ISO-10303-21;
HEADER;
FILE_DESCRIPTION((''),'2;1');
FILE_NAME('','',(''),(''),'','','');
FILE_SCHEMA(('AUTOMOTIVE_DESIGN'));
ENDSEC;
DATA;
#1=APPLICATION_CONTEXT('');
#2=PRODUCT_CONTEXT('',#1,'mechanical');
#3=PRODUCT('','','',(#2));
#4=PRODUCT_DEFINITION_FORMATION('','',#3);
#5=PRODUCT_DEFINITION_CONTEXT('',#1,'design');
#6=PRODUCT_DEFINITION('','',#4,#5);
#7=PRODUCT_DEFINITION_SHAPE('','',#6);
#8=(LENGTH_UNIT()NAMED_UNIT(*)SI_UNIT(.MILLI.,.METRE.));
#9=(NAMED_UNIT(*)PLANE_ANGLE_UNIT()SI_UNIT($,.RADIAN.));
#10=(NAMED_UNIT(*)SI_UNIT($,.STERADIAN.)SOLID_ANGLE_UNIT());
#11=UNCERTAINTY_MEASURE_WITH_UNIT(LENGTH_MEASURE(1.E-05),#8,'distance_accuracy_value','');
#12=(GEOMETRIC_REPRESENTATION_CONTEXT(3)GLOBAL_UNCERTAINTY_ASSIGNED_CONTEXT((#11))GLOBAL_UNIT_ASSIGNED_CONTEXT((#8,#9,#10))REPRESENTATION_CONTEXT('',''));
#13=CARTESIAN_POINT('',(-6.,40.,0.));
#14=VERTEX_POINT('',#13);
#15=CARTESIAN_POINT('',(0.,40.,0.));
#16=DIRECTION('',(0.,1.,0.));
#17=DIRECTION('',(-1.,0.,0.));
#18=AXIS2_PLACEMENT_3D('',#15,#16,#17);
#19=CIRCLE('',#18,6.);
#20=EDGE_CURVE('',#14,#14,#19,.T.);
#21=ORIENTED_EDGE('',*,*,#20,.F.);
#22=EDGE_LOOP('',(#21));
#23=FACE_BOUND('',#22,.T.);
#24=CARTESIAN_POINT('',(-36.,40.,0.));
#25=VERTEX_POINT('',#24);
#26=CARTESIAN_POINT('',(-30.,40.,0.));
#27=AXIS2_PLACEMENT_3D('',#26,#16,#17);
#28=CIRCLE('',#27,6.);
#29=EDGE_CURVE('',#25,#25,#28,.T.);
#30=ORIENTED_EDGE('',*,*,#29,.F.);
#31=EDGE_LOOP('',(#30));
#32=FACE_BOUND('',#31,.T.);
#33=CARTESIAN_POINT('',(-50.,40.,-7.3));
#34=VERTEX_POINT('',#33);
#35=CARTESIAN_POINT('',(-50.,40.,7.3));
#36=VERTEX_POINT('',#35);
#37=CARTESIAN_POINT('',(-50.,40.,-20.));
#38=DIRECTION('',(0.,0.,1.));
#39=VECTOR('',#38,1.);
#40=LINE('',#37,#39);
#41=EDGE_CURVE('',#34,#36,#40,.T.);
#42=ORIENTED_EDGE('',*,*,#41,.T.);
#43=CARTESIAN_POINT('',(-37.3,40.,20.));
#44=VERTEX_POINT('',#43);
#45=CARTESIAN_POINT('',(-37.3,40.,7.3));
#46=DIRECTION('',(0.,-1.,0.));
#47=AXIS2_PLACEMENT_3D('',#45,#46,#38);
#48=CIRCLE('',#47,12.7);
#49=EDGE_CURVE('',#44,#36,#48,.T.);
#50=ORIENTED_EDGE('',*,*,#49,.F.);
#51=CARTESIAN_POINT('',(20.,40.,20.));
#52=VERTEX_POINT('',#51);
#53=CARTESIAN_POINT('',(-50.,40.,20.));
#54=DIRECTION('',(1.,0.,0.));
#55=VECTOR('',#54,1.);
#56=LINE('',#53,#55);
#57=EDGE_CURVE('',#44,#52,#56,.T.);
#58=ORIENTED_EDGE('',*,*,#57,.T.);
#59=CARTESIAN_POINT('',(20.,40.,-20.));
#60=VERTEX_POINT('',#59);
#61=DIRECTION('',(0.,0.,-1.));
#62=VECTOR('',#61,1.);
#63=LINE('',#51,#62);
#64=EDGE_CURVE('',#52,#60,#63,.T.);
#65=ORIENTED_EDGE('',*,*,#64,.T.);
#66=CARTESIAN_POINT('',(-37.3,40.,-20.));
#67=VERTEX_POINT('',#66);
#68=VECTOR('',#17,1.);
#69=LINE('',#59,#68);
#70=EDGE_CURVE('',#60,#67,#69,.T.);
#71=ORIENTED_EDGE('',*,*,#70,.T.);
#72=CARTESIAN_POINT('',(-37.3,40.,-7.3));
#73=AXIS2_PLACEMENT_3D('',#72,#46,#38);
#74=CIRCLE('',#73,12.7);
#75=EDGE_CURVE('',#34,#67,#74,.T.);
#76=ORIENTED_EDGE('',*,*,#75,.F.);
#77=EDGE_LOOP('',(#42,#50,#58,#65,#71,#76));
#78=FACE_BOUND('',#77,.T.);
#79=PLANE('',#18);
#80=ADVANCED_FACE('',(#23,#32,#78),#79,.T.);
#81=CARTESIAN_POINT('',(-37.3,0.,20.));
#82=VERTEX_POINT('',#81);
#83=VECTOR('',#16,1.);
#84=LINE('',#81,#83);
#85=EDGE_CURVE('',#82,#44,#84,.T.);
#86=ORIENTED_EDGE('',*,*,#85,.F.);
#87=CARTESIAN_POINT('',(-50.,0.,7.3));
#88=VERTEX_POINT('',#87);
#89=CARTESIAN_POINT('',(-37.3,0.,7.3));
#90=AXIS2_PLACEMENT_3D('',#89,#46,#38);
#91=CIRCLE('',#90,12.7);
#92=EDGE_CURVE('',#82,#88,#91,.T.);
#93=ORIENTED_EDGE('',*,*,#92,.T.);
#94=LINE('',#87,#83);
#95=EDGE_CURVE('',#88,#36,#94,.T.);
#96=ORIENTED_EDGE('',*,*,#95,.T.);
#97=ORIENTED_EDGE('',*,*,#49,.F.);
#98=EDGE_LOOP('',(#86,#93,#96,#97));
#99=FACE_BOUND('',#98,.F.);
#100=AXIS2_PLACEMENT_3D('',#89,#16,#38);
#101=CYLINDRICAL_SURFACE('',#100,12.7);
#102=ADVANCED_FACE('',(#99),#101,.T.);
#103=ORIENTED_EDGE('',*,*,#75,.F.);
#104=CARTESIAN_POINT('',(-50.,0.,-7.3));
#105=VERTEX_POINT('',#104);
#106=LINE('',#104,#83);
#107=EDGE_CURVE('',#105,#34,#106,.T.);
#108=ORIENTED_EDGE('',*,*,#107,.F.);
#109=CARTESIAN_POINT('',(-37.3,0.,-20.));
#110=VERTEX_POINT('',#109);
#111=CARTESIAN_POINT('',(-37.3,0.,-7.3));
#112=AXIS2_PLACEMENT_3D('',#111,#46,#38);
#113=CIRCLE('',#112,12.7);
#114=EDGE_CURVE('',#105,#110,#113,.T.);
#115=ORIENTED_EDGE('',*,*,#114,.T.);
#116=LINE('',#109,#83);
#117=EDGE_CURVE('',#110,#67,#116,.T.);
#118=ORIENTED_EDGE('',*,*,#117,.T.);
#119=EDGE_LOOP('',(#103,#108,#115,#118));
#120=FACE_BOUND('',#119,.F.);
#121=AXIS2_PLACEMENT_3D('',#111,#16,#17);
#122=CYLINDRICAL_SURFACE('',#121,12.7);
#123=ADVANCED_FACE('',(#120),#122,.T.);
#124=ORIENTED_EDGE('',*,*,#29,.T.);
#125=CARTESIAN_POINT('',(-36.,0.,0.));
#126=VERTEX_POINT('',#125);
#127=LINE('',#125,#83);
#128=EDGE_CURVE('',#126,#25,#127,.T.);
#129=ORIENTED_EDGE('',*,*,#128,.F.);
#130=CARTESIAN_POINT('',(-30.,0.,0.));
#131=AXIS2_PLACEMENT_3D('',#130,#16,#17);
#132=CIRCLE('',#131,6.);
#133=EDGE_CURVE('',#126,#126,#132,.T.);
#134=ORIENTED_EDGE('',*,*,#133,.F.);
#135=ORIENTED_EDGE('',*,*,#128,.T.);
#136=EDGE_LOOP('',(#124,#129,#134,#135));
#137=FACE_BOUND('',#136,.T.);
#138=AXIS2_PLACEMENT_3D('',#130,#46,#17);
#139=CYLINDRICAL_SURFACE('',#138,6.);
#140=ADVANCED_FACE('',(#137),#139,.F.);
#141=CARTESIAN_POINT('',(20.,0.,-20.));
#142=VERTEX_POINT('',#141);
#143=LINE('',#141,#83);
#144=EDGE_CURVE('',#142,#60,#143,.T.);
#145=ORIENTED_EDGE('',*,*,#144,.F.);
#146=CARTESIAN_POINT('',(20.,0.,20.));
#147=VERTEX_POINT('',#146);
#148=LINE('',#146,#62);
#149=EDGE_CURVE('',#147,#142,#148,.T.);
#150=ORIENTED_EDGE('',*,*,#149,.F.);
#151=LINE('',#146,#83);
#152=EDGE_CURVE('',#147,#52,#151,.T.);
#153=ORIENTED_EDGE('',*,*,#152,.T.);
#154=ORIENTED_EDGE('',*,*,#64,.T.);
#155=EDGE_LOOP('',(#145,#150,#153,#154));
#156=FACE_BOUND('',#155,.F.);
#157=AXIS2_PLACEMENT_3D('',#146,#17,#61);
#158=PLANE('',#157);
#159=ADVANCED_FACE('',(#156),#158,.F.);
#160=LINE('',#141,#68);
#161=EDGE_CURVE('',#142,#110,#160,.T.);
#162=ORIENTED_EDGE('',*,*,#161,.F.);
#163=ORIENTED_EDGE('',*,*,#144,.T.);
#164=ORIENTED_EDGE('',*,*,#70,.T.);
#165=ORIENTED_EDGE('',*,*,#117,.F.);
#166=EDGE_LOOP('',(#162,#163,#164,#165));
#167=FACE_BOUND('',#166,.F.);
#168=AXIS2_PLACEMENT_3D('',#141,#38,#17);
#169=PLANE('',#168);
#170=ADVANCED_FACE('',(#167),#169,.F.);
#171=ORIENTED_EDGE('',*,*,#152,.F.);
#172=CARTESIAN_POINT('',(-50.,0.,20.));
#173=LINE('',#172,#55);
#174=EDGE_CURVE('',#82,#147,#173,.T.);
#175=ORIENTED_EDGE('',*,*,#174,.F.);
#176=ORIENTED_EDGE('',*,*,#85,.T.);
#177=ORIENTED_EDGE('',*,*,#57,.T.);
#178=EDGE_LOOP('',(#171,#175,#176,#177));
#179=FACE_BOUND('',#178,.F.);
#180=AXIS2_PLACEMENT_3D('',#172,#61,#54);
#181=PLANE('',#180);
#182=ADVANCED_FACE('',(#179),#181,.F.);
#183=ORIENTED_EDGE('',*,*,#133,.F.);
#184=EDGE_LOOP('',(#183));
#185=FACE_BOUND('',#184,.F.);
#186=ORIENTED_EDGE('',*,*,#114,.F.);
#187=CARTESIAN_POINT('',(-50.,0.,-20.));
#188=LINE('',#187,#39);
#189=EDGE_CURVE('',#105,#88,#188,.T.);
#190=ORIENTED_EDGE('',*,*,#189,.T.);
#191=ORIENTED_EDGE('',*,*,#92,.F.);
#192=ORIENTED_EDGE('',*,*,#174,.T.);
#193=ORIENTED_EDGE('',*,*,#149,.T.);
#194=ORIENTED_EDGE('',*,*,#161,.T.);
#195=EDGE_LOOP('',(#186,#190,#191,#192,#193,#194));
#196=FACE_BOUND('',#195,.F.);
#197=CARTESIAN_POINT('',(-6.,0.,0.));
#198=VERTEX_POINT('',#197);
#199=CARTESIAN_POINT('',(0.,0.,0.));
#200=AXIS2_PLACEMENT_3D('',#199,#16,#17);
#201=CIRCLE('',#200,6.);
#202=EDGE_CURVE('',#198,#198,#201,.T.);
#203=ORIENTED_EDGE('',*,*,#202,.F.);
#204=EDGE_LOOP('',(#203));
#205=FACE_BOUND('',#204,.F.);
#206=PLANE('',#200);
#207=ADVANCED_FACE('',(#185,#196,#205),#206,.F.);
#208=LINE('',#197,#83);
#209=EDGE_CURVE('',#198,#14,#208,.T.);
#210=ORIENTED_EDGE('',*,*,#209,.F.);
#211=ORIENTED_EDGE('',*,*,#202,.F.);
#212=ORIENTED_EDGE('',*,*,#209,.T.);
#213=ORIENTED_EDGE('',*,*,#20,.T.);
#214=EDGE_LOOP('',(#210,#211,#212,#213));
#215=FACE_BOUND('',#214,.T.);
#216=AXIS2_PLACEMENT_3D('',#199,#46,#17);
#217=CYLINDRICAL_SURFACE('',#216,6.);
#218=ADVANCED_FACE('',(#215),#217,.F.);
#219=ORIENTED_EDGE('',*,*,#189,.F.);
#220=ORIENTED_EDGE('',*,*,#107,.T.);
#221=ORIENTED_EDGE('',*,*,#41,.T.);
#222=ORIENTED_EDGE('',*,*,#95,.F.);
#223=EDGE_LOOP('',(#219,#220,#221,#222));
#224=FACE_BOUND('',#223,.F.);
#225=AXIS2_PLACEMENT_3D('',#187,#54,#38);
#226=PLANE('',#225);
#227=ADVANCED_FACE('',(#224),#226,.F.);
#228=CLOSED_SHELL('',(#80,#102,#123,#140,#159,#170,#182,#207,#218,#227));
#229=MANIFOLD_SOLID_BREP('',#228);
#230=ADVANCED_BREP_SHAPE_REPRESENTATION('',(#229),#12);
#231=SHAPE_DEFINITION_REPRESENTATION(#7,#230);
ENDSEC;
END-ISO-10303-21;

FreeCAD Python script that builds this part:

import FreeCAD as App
import Part
import Sketcher
from FreeCAD import Vector
Q = App.Units.Quantity


def edges_at(feature, points):
    """Names of the edges that pass closest to the given points."""
    edges = feature.Shape.Edges
    near = lambda p: min(range(len(edges)), key=lambda i: edges[i].distToShape(Part.Vertex(*p))[0])
    return sorted({f"Edge{near(p) + 1}" for p in points})

doc = App.newDocument("Part")
params = doc.addObject("Spreadsheet::Sheet", "Params")
for row, (alias, value) in enumerate([
    ("sketch1_diameter", "12 mm"),
    ("sketch1_width", "70 mm"),
    ("sketch1_height", "40 mm"),
    ("pad1_length", "40 mm"),
    ("fillet_radius", "12.7 mm"),
], start=1):
    params.set(f"A{row}", alias)
    params.set(f"B{row}", "=" + value)
    params.setAlias(f"B{row}", alias)

body = doc.addObject("PartDesign::Body", "Body")

# Sketch on XZ plane
sketch1 = body.newObject("Sketcher::SketchObject", "Sketch")
sketch1.AttachmentSupport = (doc.getObject("XZ_Plane"), [""])
sketch1.MapMode = "FlatFace"
sketch1.addGeometry([
    Part.LineSegment(Vector(20, 20, 0), Vector(20, -20, 0)),  # 0
    Part.LineSegment(Vector(20, -20, 0), Vector(-50, -20, 0)),  # 1
    Part.LineSegment(Vector(-50, -20, 0), Vector(-50, 20, 0)),  # 2
    Part.LineSegment(Vector(-50, 20, 0), Vector(20, 20, 0)),  # 3
    Part.Circle(Vector(0, 0, 0), Vector(0, 0, 1), 6),  # 4
    Part.Circle(Vector(-30, 0, 0), Vector(0, 0, 1), 6),  # 5
], False)
sketch1.addConstraint([
    Sketcher.Constraint("Coincident", 0, 2, 1, 1),
    Sketcher.Constraint("Coincident", 1, 2, 2, 1),
    Sketcher.Constraint("Coincident", 2, 2, 3, 1),
    Sketcher.Constraint("Coincident", 3, 2, 0, 1),
    Sketcher.Constraint("Vertical", 0),
    Sketcher.Constraint("Horizontal", 1),
    Sketcher.Constraint("Vertical", 2),
    Sketcher.Constraint("Horizontal", 3),
    Sketcher.Constraint("Coincident", 4, 3, -1, 1),
    Sketcher.Constraint("Equal", 4, 5),
    Sketcher.Constraint("PointOnObject", 5, 3, -1),
    Sketcher.Constraint("Diameter", 4, Q("12 mm")),
    Sketcher.Constraint("DistanceX", 1, 2, 1, 1, Q("70 mm")),
    Sketcher.Constraint("DistanceY", 0, 2, 0, 1, Q("40 mm")),
    Sketcher.Constraint("DistanceX", 5, 3, -1, 1, Q("30 mm")),
    Sketcher.Constraint("DistanceX", -1, 1, 0, 2, Q("20 mm")),
    Sketcher.Constraint("DistanceY", 0, 2, -1, 1, Q("20 mm")),
])
sketch1.setExpression("Constraints[11]", "Params.sketch1_diameter")
sketch1.setExpression("Constraints[12]", "Params.sketch1_width")
sketch1.setExpression("Constraints[13]", "Params.sketch1_height")
pad1 = body.newObject("PartDesign::Pad", "Pad")
pad1.Profile = sketch1
pad1.setExpression("Length", "Params.pad1_length")
pad1.Reversed = True
doc.recompute()

fillet = body.newObject("PartDesign::Fillet", "Fillet")
fillet.Base = (pad1, edges_at(pad1, [(-50, 20, -20), (-50, 20, 20)]))
fillet.setExpression("Radius", "Params.fillet_radius")

doc.recompute()
